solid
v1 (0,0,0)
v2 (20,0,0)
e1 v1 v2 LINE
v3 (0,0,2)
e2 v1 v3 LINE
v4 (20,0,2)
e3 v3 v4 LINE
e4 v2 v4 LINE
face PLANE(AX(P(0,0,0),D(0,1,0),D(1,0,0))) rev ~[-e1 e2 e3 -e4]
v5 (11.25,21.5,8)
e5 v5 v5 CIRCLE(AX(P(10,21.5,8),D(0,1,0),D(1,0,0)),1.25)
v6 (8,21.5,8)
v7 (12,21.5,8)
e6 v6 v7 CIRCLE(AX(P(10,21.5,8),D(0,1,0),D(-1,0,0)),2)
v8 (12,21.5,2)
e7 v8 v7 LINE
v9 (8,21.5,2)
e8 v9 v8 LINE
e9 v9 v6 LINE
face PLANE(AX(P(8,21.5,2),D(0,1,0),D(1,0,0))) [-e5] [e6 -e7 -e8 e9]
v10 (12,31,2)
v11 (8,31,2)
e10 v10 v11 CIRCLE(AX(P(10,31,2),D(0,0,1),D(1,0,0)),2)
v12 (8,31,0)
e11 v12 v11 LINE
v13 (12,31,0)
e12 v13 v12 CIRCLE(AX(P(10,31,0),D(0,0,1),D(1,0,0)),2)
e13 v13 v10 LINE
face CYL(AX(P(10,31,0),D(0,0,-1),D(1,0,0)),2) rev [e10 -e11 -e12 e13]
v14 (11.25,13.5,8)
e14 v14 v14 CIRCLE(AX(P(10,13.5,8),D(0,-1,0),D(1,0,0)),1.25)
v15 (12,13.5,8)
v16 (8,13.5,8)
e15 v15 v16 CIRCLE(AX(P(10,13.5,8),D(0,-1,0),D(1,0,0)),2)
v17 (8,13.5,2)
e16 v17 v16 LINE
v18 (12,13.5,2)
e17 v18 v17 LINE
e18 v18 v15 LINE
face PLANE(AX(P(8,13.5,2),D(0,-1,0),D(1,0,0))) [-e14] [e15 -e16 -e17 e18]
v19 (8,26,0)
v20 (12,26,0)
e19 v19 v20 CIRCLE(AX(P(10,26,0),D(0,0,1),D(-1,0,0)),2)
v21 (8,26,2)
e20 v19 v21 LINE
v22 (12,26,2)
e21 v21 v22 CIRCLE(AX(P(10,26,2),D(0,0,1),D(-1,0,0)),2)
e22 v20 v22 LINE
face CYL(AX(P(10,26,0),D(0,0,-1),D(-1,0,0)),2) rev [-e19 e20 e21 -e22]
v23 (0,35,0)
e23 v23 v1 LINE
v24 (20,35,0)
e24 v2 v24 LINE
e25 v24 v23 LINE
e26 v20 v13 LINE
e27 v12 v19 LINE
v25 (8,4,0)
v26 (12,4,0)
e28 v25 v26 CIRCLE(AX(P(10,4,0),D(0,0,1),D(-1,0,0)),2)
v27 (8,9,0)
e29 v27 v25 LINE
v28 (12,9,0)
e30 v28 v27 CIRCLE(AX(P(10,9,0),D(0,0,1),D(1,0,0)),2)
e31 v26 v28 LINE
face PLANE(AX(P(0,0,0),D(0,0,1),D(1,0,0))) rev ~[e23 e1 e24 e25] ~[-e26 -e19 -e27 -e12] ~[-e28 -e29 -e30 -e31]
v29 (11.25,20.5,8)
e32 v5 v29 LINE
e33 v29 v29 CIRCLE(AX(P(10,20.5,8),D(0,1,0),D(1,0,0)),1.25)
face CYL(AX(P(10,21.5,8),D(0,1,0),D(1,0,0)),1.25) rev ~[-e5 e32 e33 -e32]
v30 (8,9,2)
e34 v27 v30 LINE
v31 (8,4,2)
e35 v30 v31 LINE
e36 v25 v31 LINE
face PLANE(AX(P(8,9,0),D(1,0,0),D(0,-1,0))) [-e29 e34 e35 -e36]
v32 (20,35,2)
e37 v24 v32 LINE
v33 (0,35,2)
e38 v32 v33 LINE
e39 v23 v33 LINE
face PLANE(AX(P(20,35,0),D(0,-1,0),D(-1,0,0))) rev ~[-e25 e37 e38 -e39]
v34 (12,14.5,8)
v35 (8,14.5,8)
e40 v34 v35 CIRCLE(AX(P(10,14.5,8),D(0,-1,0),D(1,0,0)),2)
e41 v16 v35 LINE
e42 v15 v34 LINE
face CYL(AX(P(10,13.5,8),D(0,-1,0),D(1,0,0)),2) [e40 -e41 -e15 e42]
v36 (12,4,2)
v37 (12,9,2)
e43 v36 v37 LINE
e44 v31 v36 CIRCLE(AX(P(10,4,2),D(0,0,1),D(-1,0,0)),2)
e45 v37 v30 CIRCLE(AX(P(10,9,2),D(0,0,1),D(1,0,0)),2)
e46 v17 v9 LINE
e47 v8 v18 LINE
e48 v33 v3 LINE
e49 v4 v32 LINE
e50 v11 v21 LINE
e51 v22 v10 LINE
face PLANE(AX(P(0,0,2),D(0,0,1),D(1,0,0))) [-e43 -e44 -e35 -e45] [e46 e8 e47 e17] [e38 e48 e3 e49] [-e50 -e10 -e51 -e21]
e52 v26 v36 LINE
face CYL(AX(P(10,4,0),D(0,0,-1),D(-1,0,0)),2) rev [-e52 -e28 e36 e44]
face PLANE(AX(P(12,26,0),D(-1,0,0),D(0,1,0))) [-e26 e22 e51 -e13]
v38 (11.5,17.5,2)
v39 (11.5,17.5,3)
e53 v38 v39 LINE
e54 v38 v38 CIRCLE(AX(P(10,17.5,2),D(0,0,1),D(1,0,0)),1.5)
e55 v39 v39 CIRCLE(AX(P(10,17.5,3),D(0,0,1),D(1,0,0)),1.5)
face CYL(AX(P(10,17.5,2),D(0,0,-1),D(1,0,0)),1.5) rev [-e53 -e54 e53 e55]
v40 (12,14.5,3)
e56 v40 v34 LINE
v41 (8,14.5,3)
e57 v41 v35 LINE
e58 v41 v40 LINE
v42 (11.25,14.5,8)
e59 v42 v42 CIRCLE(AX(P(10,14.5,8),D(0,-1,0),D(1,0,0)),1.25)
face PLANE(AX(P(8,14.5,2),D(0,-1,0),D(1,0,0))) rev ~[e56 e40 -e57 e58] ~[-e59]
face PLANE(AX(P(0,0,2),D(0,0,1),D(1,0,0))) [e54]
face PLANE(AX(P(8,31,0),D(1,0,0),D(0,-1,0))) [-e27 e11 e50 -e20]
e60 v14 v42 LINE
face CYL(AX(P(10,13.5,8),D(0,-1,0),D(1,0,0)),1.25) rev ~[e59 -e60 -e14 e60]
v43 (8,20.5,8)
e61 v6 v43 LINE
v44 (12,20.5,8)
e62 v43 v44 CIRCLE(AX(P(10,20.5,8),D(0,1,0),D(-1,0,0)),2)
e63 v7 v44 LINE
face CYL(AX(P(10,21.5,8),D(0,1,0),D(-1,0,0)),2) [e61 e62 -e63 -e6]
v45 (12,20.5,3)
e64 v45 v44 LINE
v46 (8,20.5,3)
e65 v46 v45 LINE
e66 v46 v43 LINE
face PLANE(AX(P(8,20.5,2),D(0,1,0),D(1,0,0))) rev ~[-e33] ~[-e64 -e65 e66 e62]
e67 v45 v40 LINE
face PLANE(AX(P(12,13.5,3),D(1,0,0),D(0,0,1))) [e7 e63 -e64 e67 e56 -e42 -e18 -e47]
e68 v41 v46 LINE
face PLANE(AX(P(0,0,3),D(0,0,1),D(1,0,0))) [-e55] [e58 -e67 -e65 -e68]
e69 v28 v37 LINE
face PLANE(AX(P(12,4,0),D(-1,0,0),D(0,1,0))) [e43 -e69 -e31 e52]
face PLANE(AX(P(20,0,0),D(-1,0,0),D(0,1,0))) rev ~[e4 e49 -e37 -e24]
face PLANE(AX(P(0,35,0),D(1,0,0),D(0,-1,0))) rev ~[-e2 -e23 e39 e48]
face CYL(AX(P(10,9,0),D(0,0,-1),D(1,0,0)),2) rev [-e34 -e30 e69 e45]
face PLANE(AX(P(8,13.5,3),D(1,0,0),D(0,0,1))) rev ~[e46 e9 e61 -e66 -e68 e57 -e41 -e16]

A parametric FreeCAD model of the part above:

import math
import FreeCAD as App
import Part
import Sketcher

V = App.Vector


def add_polygon(sketch, points):
    """Adds a closed chain of lines whose ends are joined by coincident constraints."""
    first, n = sketch.GeometryCount, len(points)
    for a, b in zip(points, points[1:] + points[:1]):
        sketch.addGeometry(Part.LineSegment(App.Vector(*a, 0), App.Vector(*b, 0)), False)
    for i in range(n):
        sketch.addConstraint(Sketcher.Constraint("Coincident", first + i, 2, first + (i + 1) % n, 1))

doc = App.newDocument("Part")
body = doc.addObject("PartDesign::Body", "Body")

# Sketch on XY plane
sketch1 = body.newObject("Sketcher::SketchObject", "Sketch")
sketch1.AttachmentSupport = (doc.getObject("XY_Plane"), [""])
sketch1.MapMode = "FlatFace"
add_polygon(sketch1, [(0, 35), (0, 0), (20, 0), (20, 35)])  # lines 0-3
sketch1.addGeometry(Part.LineSegment(V(12, 9, 0), V(12, 4, 0)), False)  # 4
sketch1.addGeometry(Part.ArcOfCircle(Part.Circle(V(10, 4, 0), V(0, 0, 1), 2), math.radians(180), math.radians(360)), False)  # 5
sketch1.addGeometry(Part.LineSegment(V(8, 4, 0), V(8, 9, 0)), False)  # 6
sketch1.addGeometry(Part.ArcOfCircle(Part.Circle(V(10, 9, 0), V(0, 0, 1), 2), math.radians(0), math.radians(180)), False)  # 7
sketch1.addGeometry(Part.LineSegment(V(8, 26, 0), V(8, 31, 0)), False)  # 8
sketch1.addGeometry(Part.ArcOfCircle(Part.Circle(V(10, 31, 0), V(0, 0, 1), 2), math.radians(0), math.radians(180)), False)  # 9
sketch1.addGeometry(Part.LineSegment(V(12, 31, 0), V(12, 26, 0)), False)  # 10
sketch1.addGeometry(Part.ArcOfCircle(Part.Circle(V(10, 26, 0), V(0, 0, 1), 2), math.radians(180), math.radians(360)), False)  # 11
sketch1.addConstraint([
    Sketcher.Constraint("Tangent", 4, 2, 5, 2),
    Sketcher.Constraint("Tangent", 5, 1, 6, 1),
    Sketcher.Constraint("Tangent", 6, 2, 7, 2),
    Sketcher.Constraint("Tangent", 7, 1, 4, 1),
    Sketcher.Constraint("Tangent", 8, 2, 9, 2),
    Sketcher.Constraint("Tangent", 9, 1, 10, 1),
    Sketcher.Constraint("Tangent", 10, 2, 11, 2),
    Sketcher.Constraint("Tangent", 11, 1, 8, 1),
    Sketcher.Constraint("Vertical", 0),
    Sketcher.Constraint("Horizontal", 1),
    Sketcher.Constraint("Vertical", 2),
    Sketcher.Constraint("Horizontal", 3),
    Sketcher.Constraint("Vertical", 4),
    Sketcher.Constraint("Vertical", 6),
    Sketcher.Constraint("Vertical", 8),
    Sketcher.Constraint("Vertical", 10),
    Sketcher.Constraint("Coincident", 0, 2, -1, 1),
    Sketcher.Constraint("Equal", 7, 9),
    Sketcher.Constraint("Vertical", 7, 3, 9, 3),
    Sketcher.Constraint("Equal", 6, 8),
    Sketcher.Constraint("Radius", 5, 2.0),
    Sketcher.Constraint("DistanceX", 1, 1, 1, 2, 20.0),
    Sketcher.Constraint("DistanceY", 0, 2, 0, 1, 35.0),
    Sketcher.Constraint("DistanceY", 4, 2, 4, 1, 5.0),
    Sketcher.Constraint("DistanceY", -1, 1, 5, 3, 4.0),
    Sketcher.Constraint("DistanceY", 9, 3, 2, 2, 4.0),
    Sketcher.Constraint("DistanceX", -1, 1, 5, 3, 10.0),
])
pad1 = body.newObject("PartDesign::Pad", "Pad")
pad1.Profile = sketch1
pad1.Length = 2

# Sketch on XY plane
sketch2 = body.newObject("Sketcher::SketchObject", "Sketch001")
sketch2.AttachmentSupport = (doc.getObject("XY_Plane"), [""])
sketch2.MapMode = "FlatFace"
sketch2.AttachmentOffset = App.Placement(V(0, 0, 2), App.Rotation())
add_polygon(sketch2, [(12, 21.5), (8, 21.5), (8, 13.5), (12, 13.5)])  # lines 0-3
sketch2.addGeometry(Part.Circle(V(10, 17.5, 0), V(0, 0, 1), 1.5), False)  # 4
sketch2.addConstraint([
    Sketcher.Constraint("Horizontal", 0),
    Sketcher.Constraint("Vertical", 1),
    Sketcher.Constraint("Horizontal", 2),
    Sketcher.Constraint("Vertical", 3),
    Sketcher.Constraint("Diameter", 4, 3.0),
    Sketcher.Constraint("DistanceX", 0, 2, 0, 1, 4.0),
    Sketcher.Constraint("DistanceY", 1, 2, 1, 1, 8.0),
    Sketcher.Constraint("DistanceX", -1, 1, 0, 2, 8.0),
    Sketcher.Constraint("DistanceY", 4, 3, 0, 2, 4.0),
    Sketcher.Constraint("DistanceX", -1, 1, 4, 3, 10.0),
    Sketcher.Constraint("DistanceY", -1, 1, 4, 3, 17.5),
])
pad2 = body.newObject("PartDesign::Pad", "Pad001")
pad2.Profile = sketch2
pad2.Length = 1

# Sketch on XZ plane
sketch3 = body.newObject("Sketcher::SketchObject", "Sketch002")
sketch3.AttachmentSupport = (doc.getObject("XZ_Plane"), [""])
sketch3.MapMode = "FlatFace"
sketch3.AttachmentOffset = App.Placement(V(0, 0, -21.5), App.Rotation())
sketch3.addGeometry([
    Part.LineSegment(V(12, 3, 0), V(8, 3, 0)),  # 0
    Part.LineSegment(V(8, 3, 0), V(8, 8, 0)),  # 1
    Part.ArcOfCircle(Part.Circle(V(10, 8, 0), V(0, 0, 1), 2), math.radians(0), math.radians(180)),  # 2
    Part.LineSegment(V(12, 8, 0), V(12, 3, 0)),  # 3
    Part.Circle(V(10, 8, 0), V(0, 0, 1), 1.2),  # 4
], False)
sketch3.addConstraint([
    Sketcher.Constraint("Coincident", 0, 2, 1, 1),
    Sketcher.Constraint("Tangent", 1, 2, 2, 2),
    Sketcher.Constraint("Tangent", 2, 1, 3, 1),
    Sketcher.Constraint("Coincident", 3, 2, 0, 1),
    Sketcher.Constraint("Horizontal", 0),
    Sketcher.Constraint("Vertical", 1),
    Sketcher.Constraint("Vertical", 3),
    Sketcher.Constraint("Coincident", 4, 3, 2, 3),
    Sketcher.Constraint("Radius", 2, 2.0),
    Sketcher.Constraint("Diameter", 4, 2.5),
    Sketcher.Constraint("DistanceY", 1, 1, 1, 2, 5.0),
    Sketcher.Constraint("DistanceX", -1, 1, 2, 3, 10.0),
    Sketcher.Constraint("DistanceY", -1, 1, 2, 3, 8.0),
])
pad3 = body.newObject("PartDesign::Pad", "Pad002")
pad3.Profile = sketch3
pad3.Length = 1

# Sketch on XZ plane
sketch4 = body.newObject("Sketcher::SketchObject", "Sketch003")
sketch4.AttachmentSupport = (doc.getObject("XZ_Plane"), [""])
sketch4.MapMode = "FlatFace"
sketch4.AttachmentOffset = App.Placement(V(0, 0, -13.5), App.Rotation())
sketch4.addGeometry([
    Part.LineSegment(V(8, 8, 0), V(8, 3, 0)),  # 0
    Part.LineSegment(V(8, 3, 0), V(12, 3, 0)),  # 1
    Part.LineSegment(V(12, 3, 0), V(12, 8, 0)),  # 2
    Part.ArcOfCircle(Part.Circle(V(10, 8, 0), V(0, 0, 1), 2), math.radians(0), math.radians(180)),  # 3
    Part.Circle(V(10, 8, 0), V(0, 0, 1), 1.2),  # 4
], False)
sketch4.addConstraint([
    Sketcher.Constraint("Coincident", 0, 2, 1, 1),
    Sketcher.Constraint("Coincident", 1, 2, 2, 1),
    Sketcher.Constraint("Tangent", 2, 2, 3, 1),
    Sketcher.Constraint("Tangent", 3, 2, 0, 1),
    Sketcher.Constraint("Vertical", 0),
    Sketcher.Constraint("Horizontal", 1),
    Sketcher.Constraint("Vertical", 2),
    Sketcher.Constraint("Coincident", 4, 3, 3, 3),
    Sketcher.Constraint("Diameter", 4, 2.5),
    Sketcher.Constraint("Radius", 3, 2.0),
    Sketcher.Constraint("DistanceY", 0, 2, 0, 1, 5.0),
    Sketcher.Constraint("DistanceX", -1, 1, 3, 3, 10.0),
    Sketcher.Constraint("DistanceY", -1, 1, 3, 3, 8.0),
])
pad4 = body.newObject("PartDesign::Pad", "Pad003")
pad4.Profile = sketch4
pad4.Length = 1
pad4.Reversed = True

doc.recompute()
